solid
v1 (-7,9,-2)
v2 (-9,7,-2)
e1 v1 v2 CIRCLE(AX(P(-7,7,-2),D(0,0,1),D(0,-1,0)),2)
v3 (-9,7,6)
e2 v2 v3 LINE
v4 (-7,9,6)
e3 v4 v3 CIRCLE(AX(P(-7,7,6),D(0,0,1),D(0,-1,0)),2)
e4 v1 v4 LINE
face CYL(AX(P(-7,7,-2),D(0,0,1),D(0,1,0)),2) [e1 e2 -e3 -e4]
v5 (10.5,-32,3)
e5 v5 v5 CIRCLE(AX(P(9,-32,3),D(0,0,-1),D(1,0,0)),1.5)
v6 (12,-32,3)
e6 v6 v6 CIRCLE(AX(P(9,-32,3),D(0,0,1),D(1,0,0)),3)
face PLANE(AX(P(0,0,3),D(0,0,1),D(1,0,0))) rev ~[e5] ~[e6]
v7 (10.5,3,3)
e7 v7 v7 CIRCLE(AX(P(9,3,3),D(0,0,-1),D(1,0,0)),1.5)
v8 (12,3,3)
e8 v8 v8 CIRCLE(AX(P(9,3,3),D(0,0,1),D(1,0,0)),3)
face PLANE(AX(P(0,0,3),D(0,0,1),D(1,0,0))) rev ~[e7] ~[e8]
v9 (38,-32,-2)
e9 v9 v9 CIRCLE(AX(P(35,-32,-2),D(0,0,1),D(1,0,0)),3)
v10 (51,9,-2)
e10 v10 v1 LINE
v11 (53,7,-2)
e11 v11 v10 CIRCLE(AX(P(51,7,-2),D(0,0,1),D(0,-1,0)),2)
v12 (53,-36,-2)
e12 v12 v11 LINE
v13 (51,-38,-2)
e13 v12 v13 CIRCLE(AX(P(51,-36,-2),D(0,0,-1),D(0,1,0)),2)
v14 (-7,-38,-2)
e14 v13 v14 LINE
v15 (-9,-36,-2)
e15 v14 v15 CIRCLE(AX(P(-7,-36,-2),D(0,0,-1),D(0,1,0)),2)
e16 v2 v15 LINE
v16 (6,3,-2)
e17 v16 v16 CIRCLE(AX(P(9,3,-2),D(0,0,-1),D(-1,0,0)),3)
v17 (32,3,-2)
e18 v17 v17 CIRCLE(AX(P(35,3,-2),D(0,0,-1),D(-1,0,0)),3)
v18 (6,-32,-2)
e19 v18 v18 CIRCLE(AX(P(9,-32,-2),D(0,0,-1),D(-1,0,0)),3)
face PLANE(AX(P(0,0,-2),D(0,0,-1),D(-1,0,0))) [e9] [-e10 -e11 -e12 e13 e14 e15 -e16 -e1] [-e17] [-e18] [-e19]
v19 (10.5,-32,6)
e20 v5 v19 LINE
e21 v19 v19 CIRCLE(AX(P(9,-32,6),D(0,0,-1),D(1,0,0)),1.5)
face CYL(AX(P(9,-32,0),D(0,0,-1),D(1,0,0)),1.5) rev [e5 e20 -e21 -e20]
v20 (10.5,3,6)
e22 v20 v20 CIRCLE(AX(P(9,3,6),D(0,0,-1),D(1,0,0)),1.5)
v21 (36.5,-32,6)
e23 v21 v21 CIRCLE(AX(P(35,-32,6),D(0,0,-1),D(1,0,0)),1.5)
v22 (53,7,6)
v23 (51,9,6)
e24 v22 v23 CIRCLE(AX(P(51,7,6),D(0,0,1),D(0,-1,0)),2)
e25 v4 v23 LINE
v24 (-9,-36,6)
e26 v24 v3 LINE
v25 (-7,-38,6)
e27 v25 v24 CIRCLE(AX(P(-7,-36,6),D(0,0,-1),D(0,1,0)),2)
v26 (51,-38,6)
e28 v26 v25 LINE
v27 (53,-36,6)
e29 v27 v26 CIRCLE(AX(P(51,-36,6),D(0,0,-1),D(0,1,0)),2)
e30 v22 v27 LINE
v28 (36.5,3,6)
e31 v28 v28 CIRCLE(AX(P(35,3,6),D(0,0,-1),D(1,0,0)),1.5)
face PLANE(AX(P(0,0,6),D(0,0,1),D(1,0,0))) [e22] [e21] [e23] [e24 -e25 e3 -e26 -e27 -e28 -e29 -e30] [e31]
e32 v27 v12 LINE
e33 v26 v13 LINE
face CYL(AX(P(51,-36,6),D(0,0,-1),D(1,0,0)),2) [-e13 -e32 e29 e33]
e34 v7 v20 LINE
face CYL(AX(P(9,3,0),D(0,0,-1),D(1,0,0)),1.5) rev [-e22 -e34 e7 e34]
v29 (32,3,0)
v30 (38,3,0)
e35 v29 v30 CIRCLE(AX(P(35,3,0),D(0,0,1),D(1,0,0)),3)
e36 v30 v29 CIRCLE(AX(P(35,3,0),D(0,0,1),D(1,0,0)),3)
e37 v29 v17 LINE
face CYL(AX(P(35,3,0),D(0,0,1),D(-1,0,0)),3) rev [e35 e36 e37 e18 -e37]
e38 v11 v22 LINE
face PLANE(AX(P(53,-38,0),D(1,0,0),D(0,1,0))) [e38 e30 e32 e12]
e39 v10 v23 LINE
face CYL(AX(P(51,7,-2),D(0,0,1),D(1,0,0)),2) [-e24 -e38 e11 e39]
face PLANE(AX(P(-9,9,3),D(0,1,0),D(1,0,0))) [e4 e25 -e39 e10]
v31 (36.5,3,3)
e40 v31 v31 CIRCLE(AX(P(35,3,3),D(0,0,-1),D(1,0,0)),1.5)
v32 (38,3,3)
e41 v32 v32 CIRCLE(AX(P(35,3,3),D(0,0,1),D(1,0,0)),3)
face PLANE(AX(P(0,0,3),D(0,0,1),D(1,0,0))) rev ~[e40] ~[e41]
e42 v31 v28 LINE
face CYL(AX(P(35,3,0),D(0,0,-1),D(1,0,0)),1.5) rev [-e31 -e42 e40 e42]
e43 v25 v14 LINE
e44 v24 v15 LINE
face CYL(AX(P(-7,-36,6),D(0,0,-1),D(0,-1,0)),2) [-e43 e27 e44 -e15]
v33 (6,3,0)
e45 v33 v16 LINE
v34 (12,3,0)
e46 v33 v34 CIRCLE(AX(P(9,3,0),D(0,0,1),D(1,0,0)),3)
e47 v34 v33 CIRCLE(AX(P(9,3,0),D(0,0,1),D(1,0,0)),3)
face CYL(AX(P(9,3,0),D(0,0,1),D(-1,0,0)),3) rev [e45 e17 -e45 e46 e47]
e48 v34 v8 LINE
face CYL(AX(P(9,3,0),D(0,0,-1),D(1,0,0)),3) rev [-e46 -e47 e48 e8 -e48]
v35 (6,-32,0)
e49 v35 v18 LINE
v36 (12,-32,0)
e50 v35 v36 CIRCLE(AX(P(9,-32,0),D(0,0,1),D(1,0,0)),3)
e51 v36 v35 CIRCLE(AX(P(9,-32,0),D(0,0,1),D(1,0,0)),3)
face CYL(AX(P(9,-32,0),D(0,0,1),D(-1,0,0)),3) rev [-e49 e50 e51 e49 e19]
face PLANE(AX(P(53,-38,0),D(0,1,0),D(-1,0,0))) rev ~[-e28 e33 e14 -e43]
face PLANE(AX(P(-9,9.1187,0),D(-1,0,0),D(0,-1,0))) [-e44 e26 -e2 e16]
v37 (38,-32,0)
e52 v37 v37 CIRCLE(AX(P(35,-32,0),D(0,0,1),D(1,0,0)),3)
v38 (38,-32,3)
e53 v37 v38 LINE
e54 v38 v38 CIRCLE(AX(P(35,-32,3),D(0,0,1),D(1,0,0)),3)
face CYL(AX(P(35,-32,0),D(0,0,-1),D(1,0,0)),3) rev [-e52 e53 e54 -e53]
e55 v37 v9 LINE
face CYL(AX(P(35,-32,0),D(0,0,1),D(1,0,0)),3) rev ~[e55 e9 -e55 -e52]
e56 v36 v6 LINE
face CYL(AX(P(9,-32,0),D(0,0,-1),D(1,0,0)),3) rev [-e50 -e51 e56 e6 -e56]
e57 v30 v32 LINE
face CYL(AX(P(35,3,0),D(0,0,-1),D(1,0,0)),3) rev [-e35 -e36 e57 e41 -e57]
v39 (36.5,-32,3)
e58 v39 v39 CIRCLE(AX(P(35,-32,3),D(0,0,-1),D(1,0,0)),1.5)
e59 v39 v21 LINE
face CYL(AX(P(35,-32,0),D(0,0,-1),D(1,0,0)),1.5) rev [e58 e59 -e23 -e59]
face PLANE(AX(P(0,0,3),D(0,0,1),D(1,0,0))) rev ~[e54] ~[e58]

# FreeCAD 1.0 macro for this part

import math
import FreeCAD as App
import Part
import Sketcher
Q = App.Units.Quantity


def edges_at(feature, points):
    """Names of the edges that pass closest to the given points."""
    edges = feature.Shape.Edges
    near = lambda p: min(range(len(edges)), key=lambda i: edges[i].distToShape(Part.Vertex(*p))[0])
    return sorted({f"Edge{near(p) + 1}" for p in points})


def add_polygon(sketch, points):
    """Adds a closed chain of lines whose ends are joined by coincident constraints."""
    first, n = sketch.GeometryCount, len(points)
    for a, b in zip(points, points[1:] + points[:1]):
        sketch.addGeometry(Part.LineSegment(App.Vector(*a, 0), App.Vector(*b, 0)), False)
    for i in range(n):
        sketch.addConstraint(Sketcher.Constraint("Coincident", first + i, 2, first + (i + 1) % n, 1))

doc = App.newDocument("Part")
body = doc.addObject("PartDesign::Body", "Body")
body.AllowCompound = True

# Sketch on XY plane
sketch1 = body.newObject("Sketcher::SketchObject", "Sketch")
sketch1.AttachmentSupport = (doc.getObject("XY_Plane"), [""])
sketch1.MapMode = "FlatFace"
add_polygon(sketch1, [(57, 13), (-13, 13), (-13, -42), (57, -42)])  # lines 0-3
sketch1.addGeometry(Part.Circle(App.Vector(9, -32, 0), App.Vector(0, 0, 1), 3), False)  # 4
sketch1.addGeometry(Part.Circle(App.Vector(35, -32, 0), App.Vector(0, 0, 1), 3), False)  # 5
sketch1.addGeometry(Part.Circle(App.Vector(9, 3, 0), App.Vector(0, 0, 1), 3), False)  # 6
sketch1.addGeometry(Part.Circle(App.Vector(35, 3, 0), App.Vector(0, 0, 1), 3), False)  # 7
sketch1.addConstraint([
    Sketcher.Constraint("Horizontal", 0),
    Sketcher.Constraint("Vertical", 1),
    Sketcher.Constraint("Horizontal", 2),
    Sketcher.Constraint("Vertical", 3),
    Sketcher.Constraint("Equal", 4, 5),
    Sketcher.Constraint("Equal", 5, 6),
    Sketcher.Constraint("Equal", 6, 7),
    Sketcher.Constraint("Horizontal", 4, 3, 5, 3),
    Sketcher.Constraint("Horizontal", 6, 3, 7, 3),
    Sketcher.Constraint("Vertical", 4, 3, 6, 3),
    Sketcher.Constraint("Vertical", 5, 3, 7, 3),
    Sketcher.Constraint("Diameter", 4, Q("6 mm")),
    Sketcher.Constraint("DistanceY", -1, 1, 6, 3, Q("3 mm")),
    Sketcher.Constraint("DistanceX", 0, 2, 0, 1, Q("70 mm")),
    Sketcher.Constraint("DistanceY", 1, 2, 1, 1, Q("55 mm")),
    Sketcher.Constraint("DistanceX", -1, 1, 4, 3, Q("9 mm")),
    Sketcher.Constraint("DistanceY", 4, 3, -1, 1, Q("32 mm")),
    Sketcher.Constraint("DistanceX", -1, 1, 5, 3, Q("35 mm")),
    Sketcher.Constraint("DistanceX", 0, 2, -1, 1, Q("13 mm")),
    Sketcher.Constraint("DistanceY", -1, 1, 0, 2, Q("13 mm")),
])
pad1 = body.newObject("PartDesign::Pad", "Pad")
pad1.Profile = sketch1
pad1.Length = 3

# Sketch on XY plane
sketch2 = body.newObject("Sketcher::SketchObject", "Sketch001")
sketch2.AttachmentSupport = (doc.getObject("XY_Plane"), [""])
sketch2.MapMode = "FlatFace"
sketch2.AttachmentOffset = App.Placement(App.Vector(0, 0, 3), App.Rotation())
add_polygon(sketch2, [(58.2, 13.5), (-13.4, 13.5), (-13.4, -42.7), (58.2, -42.7)])  # lines 0-3
add_polygon(sketch2, [(-9, 9), (53, 9), (53, -38), (-9, -38)])  # lines 4-7
sketch2.addGeometry(Part.LineSegment(App.Vector(-13, -42, 0), App.Vector(-13, -40, 0)), False)  # 8
sketch2.addGeometry(Part.ArcOfCircle(Part.Circle(App.Vector(-11, -40, 0), App.Vector(0, 0, 1), 2), math.radians(180), math.radians(270)), False)  # 9
sketch2.addGeometry(Part.LineSegment(App.Vector(-11, -42, 0), App.Vector(-13, -42, 0)), False)  # 10
sketch2.addConstraint([
    Sketcher.Constraint("Tangent", 8, 2, 9, 1),
    Sketcher.Constraint("Tangent", 9, 2, 10, 1),
    Sketcher.Constraint("Coincident", 10, 2, 8, 1),
    Sketcher.Constraint("Horizontal", 0),
    Sketcher.Constraint("Vertical", 1),
    Sketcher.Constraint("Horizontal", 2),
    Sketcher.Constraint("Vertical", 3),
    Sketcher.Constraint("Horizontal", 4),
    Sketcher.Constraint("Vertical", 5),
    Sketcher.Constraint("Horizontal", 6),
    Sketcher.Constraint("Vertical", 7),
    Sketcher.Constraint("Vertical", 8),
    Sketcher.Constraint("Horizontal", 10),
    Sketcher.Constraint("Radius", 9, Q("2 mm")),
    Sketcher.Constraint("DistanceY", 9, 3, 5, 2, Q("2 mm")),
    Sketcher.Constraint("DistanceX", 9, 3, 6, 2, Q("2 mm")),
    Sketcher.Constraint("DistanceX", 4, 1, 4, 2, Q("62 mm")),
    Sketcher.Constraint("DistanceY", 5, 2, 5, 1, Q("47 mm")),
    Sketcher.Constraint("DistanceX", 9, 3, -1, 1, Q("11 mm")),
    Sketcher.Constraint("DistanceY", 9, 3, -1, 1, Q("40 mm")),
    Sketcher.Constraint("DistanceX", 0, 2, 0, 1, Q("71.611 mm")),
    Sketcher.Constraint("DistanceY", 1, 2, 1, 1, Q("56.2002 mm")),
    Sketcher.Constraint("DistanceX", 0, 2, -1, 1, Q("13.4447 mm")),
    Sketcher.Constraint("DistanceY", -1, 1, 0, 2, Q("13.4817 mm")),
])
pocket1 = body.newObject("PartDesign::Pocket", "Pocket")
pocket1.Profile = sketch2
pocket1.Length = 6

# Sketch on XY plane
sketch3 = body.newObject("Sketcher::SketchObject", "Sketch002")
sketch3.AttachmentSupport = (doc.getObject("XY_Plane"), [""])
sketch3.MapMode = "FlatFace"
sketch3.AttachmentOffset = App.Placement(App.Vector(0, 0, 3), App.Rotation())
add_polygon(sketch3, [(53, 9), (-9, 9), (-9, -38), (53, -38)])  # lines 0-3
sketch3.addConstraint([
    Sketcher.Constraint("Horizontal", 0),
    Sketcher.Constraint("Vertical", 1),
    Sketcher.Constraint("Horizontal", 2),
    Sketcher.Constraint("Vertical", 3),
    Sketcher.Constraint("DistanceX", 0, 2, 0, 1, Q("62 mm")),
    Sketcher.Constraint("DistanceY", 1, 2, 1, 1, Q("47 mm")),
    Sketcher.Constraint("DistanceX", 0, 2, -1, 1, Q("9 mm")),
    Sketcher.Constraint("DistanceY", -1, 1, 0, 2, Q("9 mm")),
])
pad2 = body.newObject("PartDesign::Pad", "Pad001")
pad2.Profile = sketch3
pad2.Length = 3

# Sketch on XY plane
sketch4 = body.newObject("Sketcher::SketchObject", "Sketch003")
sketch4.AttachmentSupport = (doc.getObject("XY_Plane"), [""])
sketch4.MapMode = "FlatFace"
sketch4.addGeometry([
    Part.Circle(App.Vector(9, -32, 0), App.Vector(0, 0, 1), 1.5),
    Part.Circle(App.Vector(35, -32, 0), App.Vector(0, 0, 1), 1.5),
    Part.Circle(App.Vector(35, 3, 0), App.Vector(0, 0, 1), 1.5),
    Part.Circle(App.Vector(9, 3, 0), App.Vector(0, 0, 1), 1.5),
], False)
sketch4.addConstraint([
    Sketcher.Constraint("Equal", 0, 1),
    Sketcher.Constraint("Equal", 1, 2),
    Sketcher.Constraint("Equal", 2, 3),
    Sketcher.Constraint("Horizontal", 0, 3, 1, 3),
    Sketcher.Constraint("Horizontal", 2, 3, 3, 3),
    Sketcher.Constraint("Vertical", 1, 3, 2, 3),
    Sketcher.Constraint("Vertical", 0, 3, 3, 3),
    Sketcher.Constraint("Diameter", 0, Q("3 mm")),
    Sketcher.Constraint("DistanceY", -1, 1, 2, 3, Q("3 mm")),
    Sketcher.Constraint("DistanceX", -1, 1, 0, 3, Q("9 mm")),
    Sketcher.Constraint("DistanceY", 0, 3, -1, 1, Q("32 mm")),
    Sketcher.Constraint("DistanceX", -1, 1, 1, 3, Q("35 mm")),
])
pocket2 = body.newObject("PartDesign::Pocket", "Pocket001")
pocket2.Profile = sketch4
pocket2.Length = 6

# Sketch on XY plane
sketch5 = body.newObject("Sketcher::SketchObject", "Sketch004")
sketch5.AttachmentSupport = (doc.getObject("XY_Plane"), [""])
sketch5.MapMode = "FlatFace"
sketch5.addGeometry([
    Part.Circle(App.Vector(9, -32, 0), App.Vector(0, 0, 1), 1.5),
    Part.Circle(App.Vector(35, -32, 0), App.Vector(0, 0, 1), 1.5),
    Part.Circle(App.Vector(35, 3, 0), App.Vector(0, 0, 1), 1.5),
    Part.Circle(App.Vector(9, 3, 0), App.Vector(0, 0, 1), 1.5),
], False)
sketch5.addConstraint([
    Sketcher.Constraint("Equal", 0, 1),
    Sketcher.Constraint("Equal", 1, 2),
    Sketcher.Constraint("Equal", 2, 3),
    Sketcher.Constraint("Horizontal", 0, 3, 1, 3),
    Sketcher.Constraint("Horizontal", 2, 3, 3, 3),
    Sketcher.Constraint("Vertical", 1, 3, 2, 3),
    Sketcher.Constraint("Vertical", 0, 3, 3, 3),
    Sketcher.Constraint("Diameter", 0, Q("3 mm")),
    Sketcher.Constraint("DistanceY", -1, 1, 2, 3, Q("3 mm")),
    Sketcher.Constraint("DistanceX", -1, 1, 0, 3, Q("9 mm")),
    Sketcher.Constraint("DistanceY", 0, 3, -1, 1, Q("32 mm")),
    Sketcher.Constraint("DistanceX", -1, 1, 1, 3, Q("35 mm")),
])
pocket3 = body.newObject("PartDesign::Pocket", "Pocket002")
pocket3.Profile = sketch5
pocket3.Length = 82.9
pocket3.Reversed = True

# Sketch on XY plane
sketch6 = body.newObject("Sketcher::SketchObject", "Sketch005")
sketch6.AttachmentSupport = (doc.getObject("XY_Plane"), [""])
sketch6.MapMode = "FlatFace"
add_polygon(sketch6, [(-10, -46), (-18, -46), (-18, -38), (-10, -38)])  # lines 0-3
sketch6.addConstraint([
    Sketcher.Constraint("Horizontal", 0),
    Sketcher.Constraint("Vertical", 1),
    Sketcher.Constraint("Horizontal", 2),
    Sketcher.Constraint("Vertical", 3),
    Sketcher.Constraint("DistanceX", 0, 2, 0, 1, Q("7.107 mm")),
    Sketcher.Constraint("DistanceY", 1, 1, 1, 2, Q("7.6147 mm")),
    Sketcher.Constraint("DistanceY", 0, 2, -1, 1, Q("45.688 mm")),
    Sketcher.Constraint("DistanceX", 0, 2, -1, 1, Q("17.5138 mm")),
])
pocket4 = body.newObject("PartDesign::Pocket", "Pocket003")
pocket4.Profile = sketch6
pocket4.Length = 25.05
pocket4.Reversed = True

# Sketch on XY plane
sketch7 = body.newObject("Sketcher::SketchObject", "Sketch006")
sketch7.AttachmentSupport = (doc.getObject("XY_Plane"), [""])
sketch7.MapMode = "FlatFace"
add_polygon(sketch7, [(53, 9), (53, -38), (-9, -38), (-9, 9)])  # lines 0-3
sketch7.addConstraint([
    Sketcher.Constraint("Vertical", 0),
    Sketcher.Constraint("Horizontal", 1),
    Sketcher.Constraint("Vertical", 2),
    Sketcher.Constraint("Horizontal", 3),
    Sketcher.Constraint("DistanceX", 1, 2, 1, 1, Q("62 mm")),
    Sketcher.Constraint("DistanceX", -1, 1, 0, 2, Q("53 mm")),
    Sketcher.Constraint("DistanceY", 0, 2, -1, 1, Q("38 mm")),
    Sketcher.Constraint("DistanceY", 0, 2, 0, 1, Q("47.1187 mm")),
])
pad3 = body.newObject("PartDesign::Pad", "Pad002")
pad3.Profile = sketch7
pad3.Length = 2
pad3.Reversed = True

# Sketch on XY plane
sketch8 = body.newObject("Sketcher::SketchObject", "Sketch007")
sketch8.AttachmentSupport = (doc.getObject("XY_Plane"), [""])
sketch8.MapMode = "FlatFace"
sketch8.addGeometry([
    Part.Circle(App.Vector(9, -32, 0), App.Vector(0, 0, 1), 3),
    Part.Circle(App.Vector(9, 3, 0), App.Vector(0, 0, 1), 3),
    Part.Circle(App.Vector(35, 3, 0), App.Vector(0, 0, 1), 3),
], False)
sketch8.addConstraint([
    Sketcher.Constraint("Equal", 0, 1),
    Sketcher.Constraint("Equal", 1, 2),
    Sketcher.Constraint("Horizontal", 1, 3, 2, 3),
    Sketcher.Constraint("Vertical", 0, 3, 1, 3),
    Sketcher.Constraint("Diameter", 0, Q("6 mm")),
    Sketcher.Constraint("DistanceX", -1, 1, 0, 3, Q("9 mm")),
    Sketcher.Constraint("DistanceY", 0, 3, -1, 1, Q("32 mm")),
    Sketcher.Constraint("DistanceY", -1, 1, 1, 3, Q("3 mm")),
    Sketcher.Constraint("DistanceX", -1, 1, 2, 3, Q("35 mm")),
])
pocket5 = body.newObject("PartDesign::Pocket", "Pocket004")
pocket5.Profile = sketch8
pocket5.Length = 2

# Sketch on XY plane
sketch9 = body.newObject("Sketcher::SketchObject", "Sketch008")
sketch9.AttachmentSupport = (doc.getObject("XY_Plane"), [""])
sketch9.MapMode = "FlatFace"
sketch9.addGeometry(Part.Circle(App.Vector(35, -32, 0), App.Vector(0, 0, 1), 1.5), False)
sketch9.addConstraint([
    Sketcher.Constraint("Diameter", 0, Q("3 mm")),
    Sketcher.Constraint("DistanceX", -1, 1, 0, 3, Q("35 mm")),
    Sketcher.Constraint("DistanceY", 0, 3, -1, 1, Q("32 mm")),
])
pocket6 = body.newObject("PartDesign::Pocket", "Pocket005")
pocket6.Profile = sketch9
pocket6.Length = 8

# Sketch on XY plane
sketch10 = body.newObject("Sketcher::SketchObject", "Sketch009")
sketch10.AttachmentSupport = (doc.getObject("XY_Plane"), [""])
sketch10.MapMode = "FlatFace"
sketch10.addGeometry(Part.Circle(App.Vector(35, -32, 0), App.Vector(0, 0, 1), 3), False)
sketch10.addConstraint([
    Sketcher.Constraint("Diameter", 0, Q("6 mm")),
    Sketcher.Constraint("DistanceX", -1, 1, 0, 3, Q("35 mm")),
    Sketcher.Constraint("DistanceY", 0, 3, -1, 1, Q("32 mm")),
])
pocket7 = body.newObject("PartDesign::Pocket", "Pocket006")
pocket7.Profile = sketch10
pocket7.Length = 4

# Sketch on XY plane
sketch11 = body.newObject("Sketcher::SketchObject", "Sketch010")
sketch11.AttachmentSupport = (doc.getObject("XY_Plane"), [""])
sketch11.MapMode = "FlatFace"
sketch11.AttachmentOffset = App.Placement(App.Vector(0, 0, -2), App.Rotation())
add_polygon(sketch11, [(53, 9.12), (53, 9), (-9, 9), (-9, 9.12)])  # lines 0-3
sketch11.addConstraint([
    Sketcher.Constraint("Vertical", 0),
    Sketcher.Constraint("Horizontal", 1),
    Sketcher.Constraint("Vertical", 2),
    Sketcher.Constraint("Horizontal", 3),
    Sketcher.Constraint("DistanceX", 1, 2, 1, 1, Q("62 mm")),
    Sketcher.Constraint("DistanceX", -1, 1, 0, 2, Q("53 mm")),
    Sketcher.Constraint("DistanceY", -1, 1, 0, 2, Q("9 mm")),
    Sketcher.Constraint("DistanceY", 0, 2, 0, 1, Q("0.1187 mm")),
])
pocket8 = body.newObject("PartDesign::Pocket", "Pocket007")
pocket8.Profile = sketch11
pocket8.Length = 4
pocket8.Reversed = True
doc.recompute()

fillet = body.newObject("PartDesign::Fillet", "Fillet")
fillet.Base = (pocket8, edges_at(pocket8, [
    (-9, -38, 2),
    (53, -38, 2),
    (53, 9, 2),
    (-9, 9, 2),
]))
fillet.Radius = 2

doc.recompute()
